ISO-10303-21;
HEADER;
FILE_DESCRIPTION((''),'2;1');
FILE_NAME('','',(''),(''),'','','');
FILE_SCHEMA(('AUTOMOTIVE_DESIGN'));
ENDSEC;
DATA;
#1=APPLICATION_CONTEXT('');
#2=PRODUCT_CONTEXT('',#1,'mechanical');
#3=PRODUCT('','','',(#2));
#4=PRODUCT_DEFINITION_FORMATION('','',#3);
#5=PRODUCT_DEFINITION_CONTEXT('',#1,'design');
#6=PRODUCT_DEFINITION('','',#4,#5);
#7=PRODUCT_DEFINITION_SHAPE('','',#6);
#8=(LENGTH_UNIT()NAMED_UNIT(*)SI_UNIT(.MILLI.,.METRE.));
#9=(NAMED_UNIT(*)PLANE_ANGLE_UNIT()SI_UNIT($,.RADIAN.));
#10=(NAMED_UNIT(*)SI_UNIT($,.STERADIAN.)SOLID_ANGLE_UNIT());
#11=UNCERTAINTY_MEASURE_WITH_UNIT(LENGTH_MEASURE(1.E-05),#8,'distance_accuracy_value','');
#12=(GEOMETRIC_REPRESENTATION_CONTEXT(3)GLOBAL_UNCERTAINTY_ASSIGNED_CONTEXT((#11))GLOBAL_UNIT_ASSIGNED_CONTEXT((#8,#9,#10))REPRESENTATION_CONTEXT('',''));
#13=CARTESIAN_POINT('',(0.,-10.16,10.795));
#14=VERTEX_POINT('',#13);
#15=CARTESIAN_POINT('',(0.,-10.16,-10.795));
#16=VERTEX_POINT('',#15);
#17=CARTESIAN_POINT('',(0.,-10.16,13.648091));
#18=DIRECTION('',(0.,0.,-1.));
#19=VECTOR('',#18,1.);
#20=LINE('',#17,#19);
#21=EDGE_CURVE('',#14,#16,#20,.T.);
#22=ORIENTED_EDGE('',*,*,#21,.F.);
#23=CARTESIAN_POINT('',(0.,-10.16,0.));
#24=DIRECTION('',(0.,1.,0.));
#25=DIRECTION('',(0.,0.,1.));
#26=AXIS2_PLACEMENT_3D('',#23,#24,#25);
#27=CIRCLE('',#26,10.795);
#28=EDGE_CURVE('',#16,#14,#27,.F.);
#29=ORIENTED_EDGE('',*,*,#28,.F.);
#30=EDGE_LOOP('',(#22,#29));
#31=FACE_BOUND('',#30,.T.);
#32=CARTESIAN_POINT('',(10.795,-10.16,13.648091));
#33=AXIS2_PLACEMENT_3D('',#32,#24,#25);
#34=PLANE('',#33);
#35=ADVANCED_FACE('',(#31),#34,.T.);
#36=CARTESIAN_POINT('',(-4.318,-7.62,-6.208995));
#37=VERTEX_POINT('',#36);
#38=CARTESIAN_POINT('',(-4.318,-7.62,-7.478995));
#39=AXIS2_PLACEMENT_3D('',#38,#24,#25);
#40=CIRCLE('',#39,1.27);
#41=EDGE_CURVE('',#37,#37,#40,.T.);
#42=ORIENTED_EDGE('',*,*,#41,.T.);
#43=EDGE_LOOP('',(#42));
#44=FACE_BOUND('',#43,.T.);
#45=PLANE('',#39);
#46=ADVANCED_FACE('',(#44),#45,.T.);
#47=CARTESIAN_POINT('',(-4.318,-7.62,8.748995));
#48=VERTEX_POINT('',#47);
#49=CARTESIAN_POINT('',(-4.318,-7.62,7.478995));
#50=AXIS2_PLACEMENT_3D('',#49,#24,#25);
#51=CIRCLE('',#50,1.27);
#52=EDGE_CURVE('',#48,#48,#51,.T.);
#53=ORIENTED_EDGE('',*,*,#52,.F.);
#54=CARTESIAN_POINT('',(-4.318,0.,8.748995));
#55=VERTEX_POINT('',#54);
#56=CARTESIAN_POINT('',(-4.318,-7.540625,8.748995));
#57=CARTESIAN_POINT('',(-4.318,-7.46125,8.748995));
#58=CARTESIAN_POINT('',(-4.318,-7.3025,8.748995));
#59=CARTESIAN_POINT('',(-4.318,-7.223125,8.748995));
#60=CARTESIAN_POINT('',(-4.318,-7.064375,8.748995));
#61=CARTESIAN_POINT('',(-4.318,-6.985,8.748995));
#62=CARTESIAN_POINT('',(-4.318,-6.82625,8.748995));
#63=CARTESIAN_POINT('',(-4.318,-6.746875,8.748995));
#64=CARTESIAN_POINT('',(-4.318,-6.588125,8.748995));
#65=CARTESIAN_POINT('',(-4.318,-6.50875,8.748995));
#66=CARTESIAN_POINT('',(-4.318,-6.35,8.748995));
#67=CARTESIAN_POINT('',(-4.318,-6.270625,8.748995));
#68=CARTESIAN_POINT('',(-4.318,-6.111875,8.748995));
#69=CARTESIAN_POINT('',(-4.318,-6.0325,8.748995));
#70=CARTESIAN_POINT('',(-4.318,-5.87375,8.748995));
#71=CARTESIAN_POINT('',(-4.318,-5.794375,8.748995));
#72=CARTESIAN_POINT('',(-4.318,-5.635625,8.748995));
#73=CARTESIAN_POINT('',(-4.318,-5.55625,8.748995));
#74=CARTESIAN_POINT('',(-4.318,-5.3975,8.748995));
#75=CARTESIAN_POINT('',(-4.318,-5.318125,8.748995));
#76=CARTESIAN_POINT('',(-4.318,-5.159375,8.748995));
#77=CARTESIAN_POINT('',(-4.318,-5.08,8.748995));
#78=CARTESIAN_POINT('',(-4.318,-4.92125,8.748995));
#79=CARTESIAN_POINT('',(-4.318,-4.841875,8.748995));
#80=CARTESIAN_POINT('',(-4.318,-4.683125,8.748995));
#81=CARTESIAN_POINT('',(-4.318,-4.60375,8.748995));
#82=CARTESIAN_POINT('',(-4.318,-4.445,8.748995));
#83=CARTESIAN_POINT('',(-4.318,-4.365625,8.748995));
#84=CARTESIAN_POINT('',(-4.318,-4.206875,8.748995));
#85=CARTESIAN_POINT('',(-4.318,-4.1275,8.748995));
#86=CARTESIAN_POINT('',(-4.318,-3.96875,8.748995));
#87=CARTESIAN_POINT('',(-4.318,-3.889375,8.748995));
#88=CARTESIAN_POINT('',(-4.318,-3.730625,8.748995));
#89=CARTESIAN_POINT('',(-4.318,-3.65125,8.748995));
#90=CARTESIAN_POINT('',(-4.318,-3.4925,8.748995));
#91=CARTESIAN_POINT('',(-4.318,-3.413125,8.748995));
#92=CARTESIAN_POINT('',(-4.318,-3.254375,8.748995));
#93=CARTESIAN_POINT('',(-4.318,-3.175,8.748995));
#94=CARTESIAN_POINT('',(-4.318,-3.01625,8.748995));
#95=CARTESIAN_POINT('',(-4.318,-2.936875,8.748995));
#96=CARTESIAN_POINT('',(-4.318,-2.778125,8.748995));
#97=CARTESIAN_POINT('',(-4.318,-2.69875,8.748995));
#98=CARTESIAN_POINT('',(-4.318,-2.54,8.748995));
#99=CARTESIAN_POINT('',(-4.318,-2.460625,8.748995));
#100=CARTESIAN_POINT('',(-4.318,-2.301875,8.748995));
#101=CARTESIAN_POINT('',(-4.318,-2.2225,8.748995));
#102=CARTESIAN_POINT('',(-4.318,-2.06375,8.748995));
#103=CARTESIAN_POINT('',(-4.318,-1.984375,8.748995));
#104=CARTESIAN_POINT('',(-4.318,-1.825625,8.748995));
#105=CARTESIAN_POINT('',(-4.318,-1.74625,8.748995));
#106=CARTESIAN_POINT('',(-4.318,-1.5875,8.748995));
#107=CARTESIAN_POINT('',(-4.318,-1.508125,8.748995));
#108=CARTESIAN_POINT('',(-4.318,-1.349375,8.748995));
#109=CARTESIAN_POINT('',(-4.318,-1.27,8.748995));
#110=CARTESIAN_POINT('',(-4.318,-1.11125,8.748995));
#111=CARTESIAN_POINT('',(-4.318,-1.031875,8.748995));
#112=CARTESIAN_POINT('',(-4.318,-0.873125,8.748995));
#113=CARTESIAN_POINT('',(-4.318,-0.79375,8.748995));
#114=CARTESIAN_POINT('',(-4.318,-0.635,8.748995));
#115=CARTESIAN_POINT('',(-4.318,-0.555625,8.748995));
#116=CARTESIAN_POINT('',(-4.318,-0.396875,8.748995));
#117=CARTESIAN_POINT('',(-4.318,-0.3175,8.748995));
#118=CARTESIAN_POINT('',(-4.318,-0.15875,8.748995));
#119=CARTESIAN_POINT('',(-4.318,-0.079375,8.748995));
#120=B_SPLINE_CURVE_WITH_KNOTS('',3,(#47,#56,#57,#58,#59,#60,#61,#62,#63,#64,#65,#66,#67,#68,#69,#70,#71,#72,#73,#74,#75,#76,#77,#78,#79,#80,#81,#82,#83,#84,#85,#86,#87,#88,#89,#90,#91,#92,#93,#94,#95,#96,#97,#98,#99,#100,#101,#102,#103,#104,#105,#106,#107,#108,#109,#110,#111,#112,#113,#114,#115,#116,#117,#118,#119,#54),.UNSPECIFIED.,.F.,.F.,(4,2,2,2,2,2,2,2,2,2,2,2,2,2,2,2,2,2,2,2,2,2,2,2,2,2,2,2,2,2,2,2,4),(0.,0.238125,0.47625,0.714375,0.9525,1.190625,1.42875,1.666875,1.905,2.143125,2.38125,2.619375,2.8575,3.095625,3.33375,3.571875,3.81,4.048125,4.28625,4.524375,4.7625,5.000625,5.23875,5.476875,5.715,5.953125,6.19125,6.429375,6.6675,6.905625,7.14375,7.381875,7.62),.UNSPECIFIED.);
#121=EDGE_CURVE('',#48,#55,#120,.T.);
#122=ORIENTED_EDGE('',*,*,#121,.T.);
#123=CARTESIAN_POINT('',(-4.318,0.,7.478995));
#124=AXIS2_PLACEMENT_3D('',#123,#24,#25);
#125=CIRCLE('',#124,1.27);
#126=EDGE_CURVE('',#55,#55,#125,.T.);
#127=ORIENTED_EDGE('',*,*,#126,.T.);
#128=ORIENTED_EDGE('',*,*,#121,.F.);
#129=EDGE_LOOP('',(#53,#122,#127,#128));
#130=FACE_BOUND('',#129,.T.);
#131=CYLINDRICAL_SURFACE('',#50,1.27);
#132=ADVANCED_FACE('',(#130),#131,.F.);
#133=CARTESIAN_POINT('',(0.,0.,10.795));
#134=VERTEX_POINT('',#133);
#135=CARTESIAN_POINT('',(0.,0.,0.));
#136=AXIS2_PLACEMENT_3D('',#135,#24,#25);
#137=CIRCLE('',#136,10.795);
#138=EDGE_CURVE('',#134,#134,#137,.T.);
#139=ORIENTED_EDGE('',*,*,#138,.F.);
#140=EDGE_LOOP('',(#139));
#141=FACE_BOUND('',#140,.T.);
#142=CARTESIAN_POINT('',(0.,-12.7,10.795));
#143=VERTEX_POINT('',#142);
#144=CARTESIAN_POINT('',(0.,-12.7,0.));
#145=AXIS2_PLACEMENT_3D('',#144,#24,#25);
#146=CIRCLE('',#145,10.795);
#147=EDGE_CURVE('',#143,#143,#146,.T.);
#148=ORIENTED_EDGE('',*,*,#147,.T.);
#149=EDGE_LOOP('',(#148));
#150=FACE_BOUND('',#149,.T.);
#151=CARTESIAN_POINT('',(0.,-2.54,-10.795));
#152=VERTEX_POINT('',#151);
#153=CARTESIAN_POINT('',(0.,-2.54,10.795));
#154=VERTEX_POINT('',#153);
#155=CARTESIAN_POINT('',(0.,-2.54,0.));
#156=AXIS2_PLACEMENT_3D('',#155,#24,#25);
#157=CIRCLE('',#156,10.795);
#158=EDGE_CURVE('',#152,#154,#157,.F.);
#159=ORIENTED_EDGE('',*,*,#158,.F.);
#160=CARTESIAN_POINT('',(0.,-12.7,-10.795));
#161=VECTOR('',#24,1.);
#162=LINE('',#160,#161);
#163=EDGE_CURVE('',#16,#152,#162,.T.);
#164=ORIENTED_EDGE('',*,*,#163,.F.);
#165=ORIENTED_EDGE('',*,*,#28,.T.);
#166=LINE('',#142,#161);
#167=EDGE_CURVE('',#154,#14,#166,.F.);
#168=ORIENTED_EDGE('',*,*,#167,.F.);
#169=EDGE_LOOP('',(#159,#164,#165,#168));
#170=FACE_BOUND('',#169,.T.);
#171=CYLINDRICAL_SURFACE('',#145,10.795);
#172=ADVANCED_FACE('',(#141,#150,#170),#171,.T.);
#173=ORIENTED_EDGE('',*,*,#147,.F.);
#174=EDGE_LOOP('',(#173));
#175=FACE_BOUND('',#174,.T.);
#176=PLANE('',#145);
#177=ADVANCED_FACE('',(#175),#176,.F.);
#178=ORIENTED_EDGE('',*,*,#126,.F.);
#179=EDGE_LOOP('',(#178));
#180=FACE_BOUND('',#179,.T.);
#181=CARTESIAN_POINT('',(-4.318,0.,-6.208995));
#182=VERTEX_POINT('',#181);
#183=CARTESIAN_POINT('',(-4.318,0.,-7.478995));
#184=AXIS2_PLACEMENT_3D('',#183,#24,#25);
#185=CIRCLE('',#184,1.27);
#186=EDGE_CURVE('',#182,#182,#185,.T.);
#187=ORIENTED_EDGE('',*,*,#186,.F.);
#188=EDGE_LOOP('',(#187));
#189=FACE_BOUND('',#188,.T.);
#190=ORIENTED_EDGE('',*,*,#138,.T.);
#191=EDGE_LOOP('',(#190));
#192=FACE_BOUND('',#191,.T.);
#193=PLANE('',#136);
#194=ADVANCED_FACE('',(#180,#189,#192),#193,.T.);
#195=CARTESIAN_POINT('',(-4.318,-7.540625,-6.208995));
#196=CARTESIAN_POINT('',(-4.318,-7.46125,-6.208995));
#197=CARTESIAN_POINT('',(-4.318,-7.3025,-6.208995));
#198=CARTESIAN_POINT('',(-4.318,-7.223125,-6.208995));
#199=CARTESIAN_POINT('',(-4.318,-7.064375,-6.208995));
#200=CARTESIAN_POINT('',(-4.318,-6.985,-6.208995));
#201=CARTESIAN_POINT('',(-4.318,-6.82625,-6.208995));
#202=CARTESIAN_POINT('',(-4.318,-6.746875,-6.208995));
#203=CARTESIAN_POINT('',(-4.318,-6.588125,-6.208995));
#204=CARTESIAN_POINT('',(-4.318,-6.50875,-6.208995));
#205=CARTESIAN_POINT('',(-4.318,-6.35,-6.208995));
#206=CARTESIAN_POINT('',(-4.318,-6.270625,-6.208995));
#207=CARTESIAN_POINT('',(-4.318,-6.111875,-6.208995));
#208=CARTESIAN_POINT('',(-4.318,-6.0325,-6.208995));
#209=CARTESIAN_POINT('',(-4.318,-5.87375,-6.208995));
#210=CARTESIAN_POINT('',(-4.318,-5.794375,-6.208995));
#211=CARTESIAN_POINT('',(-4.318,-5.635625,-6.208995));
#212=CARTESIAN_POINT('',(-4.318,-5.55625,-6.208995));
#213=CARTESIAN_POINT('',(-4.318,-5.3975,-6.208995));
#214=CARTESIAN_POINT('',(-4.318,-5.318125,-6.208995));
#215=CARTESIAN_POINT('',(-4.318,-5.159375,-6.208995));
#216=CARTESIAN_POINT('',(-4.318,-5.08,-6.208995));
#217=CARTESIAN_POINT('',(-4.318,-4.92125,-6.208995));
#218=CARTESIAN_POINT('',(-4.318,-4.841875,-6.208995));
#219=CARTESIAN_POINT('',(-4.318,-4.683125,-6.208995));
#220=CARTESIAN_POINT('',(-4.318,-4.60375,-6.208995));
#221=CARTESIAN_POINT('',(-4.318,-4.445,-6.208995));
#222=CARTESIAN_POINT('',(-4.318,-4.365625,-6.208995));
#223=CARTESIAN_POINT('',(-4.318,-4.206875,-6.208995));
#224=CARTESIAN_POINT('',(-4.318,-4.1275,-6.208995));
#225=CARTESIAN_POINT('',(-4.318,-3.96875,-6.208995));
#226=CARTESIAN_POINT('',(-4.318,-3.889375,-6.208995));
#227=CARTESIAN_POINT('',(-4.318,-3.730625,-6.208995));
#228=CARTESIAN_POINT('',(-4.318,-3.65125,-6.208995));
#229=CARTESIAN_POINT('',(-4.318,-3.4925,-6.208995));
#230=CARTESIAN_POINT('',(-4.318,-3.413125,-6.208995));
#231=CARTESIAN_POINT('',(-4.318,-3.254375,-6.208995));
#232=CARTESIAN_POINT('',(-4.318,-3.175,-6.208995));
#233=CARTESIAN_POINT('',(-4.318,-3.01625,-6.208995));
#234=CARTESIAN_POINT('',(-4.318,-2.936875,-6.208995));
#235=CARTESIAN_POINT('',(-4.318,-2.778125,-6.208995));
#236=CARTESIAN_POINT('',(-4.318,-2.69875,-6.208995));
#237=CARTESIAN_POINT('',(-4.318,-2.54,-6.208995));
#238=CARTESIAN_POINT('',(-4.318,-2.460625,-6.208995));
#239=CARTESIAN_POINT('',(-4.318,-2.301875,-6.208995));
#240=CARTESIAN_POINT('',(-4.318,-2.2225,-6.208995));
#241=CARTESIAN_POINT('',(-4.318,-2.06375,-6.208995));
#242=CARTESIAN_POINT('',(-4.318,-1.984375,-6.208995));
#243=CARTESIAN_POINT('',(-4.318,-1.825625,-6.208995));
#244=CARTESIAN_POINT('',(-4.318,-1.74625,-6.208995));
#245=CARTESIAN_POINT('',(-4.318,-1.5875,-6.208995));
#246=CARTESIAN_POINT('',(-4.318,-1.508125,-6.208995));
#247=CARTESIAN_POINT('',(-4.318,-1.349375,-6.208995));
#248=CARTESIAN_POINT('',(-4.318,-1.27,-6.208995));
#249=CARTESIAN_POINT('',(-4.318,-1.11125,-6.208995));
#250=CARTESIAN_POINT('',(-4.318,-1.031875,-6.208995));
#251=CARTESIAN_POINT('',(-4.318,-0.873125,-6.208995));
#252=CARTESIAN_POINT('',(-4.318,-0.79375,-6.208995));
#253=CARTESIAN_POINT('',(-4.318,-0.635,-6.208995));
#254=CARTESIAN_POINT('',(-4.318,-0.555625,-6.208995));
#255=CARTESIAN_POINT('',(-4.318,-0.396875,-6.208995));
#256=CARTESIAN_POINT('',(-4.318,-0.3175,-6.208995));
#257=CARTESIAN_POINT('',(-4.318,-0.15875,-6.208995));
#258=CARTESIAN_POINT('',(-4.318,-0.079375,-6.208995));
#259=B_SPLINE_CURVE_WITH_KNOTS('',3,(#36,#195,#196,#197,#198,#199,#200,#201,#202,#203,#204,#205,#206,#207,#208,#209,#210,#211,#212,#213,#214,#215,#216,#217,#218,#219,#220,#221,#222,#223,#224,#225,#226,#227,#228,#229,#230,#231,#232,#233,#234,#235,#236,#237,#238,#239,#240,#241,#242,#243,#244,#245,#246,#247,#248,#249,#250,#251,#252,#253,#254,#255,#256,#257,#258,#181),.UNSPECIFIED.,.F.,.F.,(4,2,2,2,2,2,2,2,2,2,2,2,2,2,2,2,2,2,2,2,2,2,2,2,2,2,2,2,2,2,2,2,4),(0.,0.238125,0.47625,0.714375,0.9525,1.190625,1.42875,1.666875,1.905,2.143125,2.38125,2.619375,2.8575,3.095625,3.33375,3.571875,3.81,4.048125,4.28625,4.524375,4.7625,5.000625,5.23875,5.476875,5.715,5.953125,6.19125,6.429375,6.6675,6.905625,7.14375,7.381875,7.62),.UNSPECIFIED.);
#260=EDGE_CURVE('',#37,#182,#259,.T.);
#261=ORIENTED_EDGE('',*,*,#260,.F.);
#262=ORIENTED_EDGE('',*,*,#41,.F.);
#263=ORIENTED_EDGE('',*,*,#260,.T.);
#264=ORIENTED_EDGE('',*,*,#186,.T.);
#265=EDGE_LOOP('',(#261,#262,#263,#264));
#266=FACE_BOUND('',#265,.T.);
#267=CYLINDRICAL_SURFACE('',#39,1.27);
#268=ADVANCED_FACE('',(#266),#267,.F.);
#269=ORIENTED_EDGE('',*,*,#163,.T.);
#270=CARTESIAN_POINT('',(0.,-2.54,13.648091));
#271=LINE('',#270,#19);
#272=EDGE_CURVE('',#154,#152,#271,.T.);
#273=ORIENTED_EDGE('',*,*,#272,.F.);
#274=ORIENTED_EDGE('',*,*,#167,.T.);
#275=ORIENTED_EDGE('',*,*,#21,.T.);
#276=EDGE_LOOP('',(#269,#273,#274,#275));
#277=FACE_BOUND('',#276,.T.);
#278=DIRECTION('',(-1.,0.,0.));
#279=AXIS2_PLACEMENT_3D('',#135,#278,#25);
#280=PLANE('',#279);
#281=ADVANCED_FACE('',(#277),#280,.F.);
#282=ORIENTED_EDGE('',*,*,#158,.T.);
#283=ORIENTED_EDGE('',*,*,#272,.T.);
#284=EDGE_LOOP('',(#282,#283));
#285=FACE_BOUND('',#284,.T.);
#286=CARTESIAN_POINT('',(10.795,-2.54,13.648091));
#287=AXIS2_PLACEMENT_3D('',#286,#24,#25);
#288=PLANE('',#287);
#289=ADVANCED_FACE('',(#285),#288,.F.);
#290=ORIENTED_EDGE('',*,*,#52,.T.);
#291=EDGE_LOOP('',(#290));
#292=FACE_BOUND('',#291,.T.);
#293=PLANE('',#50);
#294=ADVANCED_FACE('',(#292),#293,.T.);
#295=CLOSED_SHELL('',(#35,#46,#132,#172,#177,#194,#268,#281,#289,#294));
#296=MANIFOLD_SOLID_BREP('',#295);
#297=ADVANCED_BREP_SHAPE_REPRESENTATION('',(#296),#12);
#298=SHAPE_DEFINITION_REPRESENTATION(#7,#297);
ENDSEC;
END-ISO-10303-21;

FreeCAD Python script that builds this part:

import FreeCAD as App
import Part
import Sketcher
Q = App.Units.Quantity


def add_polygon(sketch, points):
    """Adds a closed chain of lines whose ends are joined by coincident constraints."""
    first, n = sketch.GeometryCount, len(points)
    for a, b in zip(points, points[1:] + points[:1]):
        sketch.addGeometry(Part.LineSegment(App.Vector(*a, 0), App.Vector(*b, 0)), False)
    for i in range(n):
        sketch.addConstraint(Sketcher.Constraint("Coincident", first + i, 2, first + (i + 1) % n, 1))

doc = App.newDocument("Part")
body = doc.addObject("PartDesign::Body", "Body")

sketch1 = body.newObject("Sketcher::SketchObject", "Sketch")
sketch1.AttachmentSupport = (doc.getObject("XZ_Plane"), [""])
sketch1.MapMode = "FlatFace"
sketch1.addGeometry(Part.Circle(App.Vector(0, 0, 0), App.Vector(0, 0, 1), 11), False)
sketch1.addConstraint([
    Sketcher.Constraint("Coincident", 0, 3, -1, 1),
    Sketcher.Constraint("Diameter", 0, Q("0.85 in")),
])
pad1 = body.newObject("PartDesign::Pad", "Pad")
pad1.Profile = sketch1
pad1.Length = Q("0.5 in")

sketch2 = body.newObject("Sketcher::SketchObject", "Sketch001")
sketch2.AttachmentSupport = (doc.getObject("YZ_Plane"), [""])
sketch2.MapMode = "FlatFace"
add_polygon(sketch2, [(-3, 14), (-10, 14), (-10, -12), (-3, -12)])
sketch2.addConstraint([
    Sketcher.Constraint("Horizontal", 0),
    Sketcher.Constraint("Vertical", 1),
    Sketcher.Constraint("Horizontal", 2),
    Sketcher.Constraint("Vertical", 3),
    Sketcher.Constraint("DistanceX", 0, 2, 0, 1, Q("0.3 in")),
    Sketcher.Constraint("DistanceX", 0, 2, -1, 1, Q("0.4 in")),
    Sketcher.Constraint("DistanceY", 1, 2, 1, 1, 25.439299),
    Sketcher.Constraint("DistanceY", -1, 1, 0, 2, 13.648091),
])
pocket1 = body.newObject("PartDesign::Pocket", "Pocket")
pocket1.Profile = sketch2
pocket1.Type = "ThroughAll"
pocket1.Reversed = True

sketch3 = body.newObject("Sketcher::SketchObject", "Sketch002")
sketch3.AttachmentSupport = (doc.getObject("XZ_Plane"), [""])
sketch3.MapMode = "FlatFace"
sketch3.addGeometry([
    Part.Circle(App.Vector(-4.3, 7.5, 0), App.Vector(0, 0, 1), 1.3),
    Part.Circle(App.Vector(-4.3, -7.5, 0), App.Vector(0, 0, 1), 1.3),
], False)
sketch3.addConstraint([
    Sketcher.Constraint("Equal", 0, 1),
    Sketcher.Constraint("Symmetric", 0, 3, 1, 3, -1),
    Sketcher.Constraint("Diameter", 0, Q("0.1 in")),
    Sketcher.Constraint("DistanceX", 0, 3, -1, 1, Q("0.17 in")),
    Sketcher.Constraint("DistanceY", 1, 3, 0, 3, 14.957991),
])
pocket2 = body.newObject("PartDesign::Pocket", "Pocket001")
pocket2.Profile = sketch3
pocket2.Length = Q("0.3 in")
pocket2.Reversed = True

doc.recompute()
